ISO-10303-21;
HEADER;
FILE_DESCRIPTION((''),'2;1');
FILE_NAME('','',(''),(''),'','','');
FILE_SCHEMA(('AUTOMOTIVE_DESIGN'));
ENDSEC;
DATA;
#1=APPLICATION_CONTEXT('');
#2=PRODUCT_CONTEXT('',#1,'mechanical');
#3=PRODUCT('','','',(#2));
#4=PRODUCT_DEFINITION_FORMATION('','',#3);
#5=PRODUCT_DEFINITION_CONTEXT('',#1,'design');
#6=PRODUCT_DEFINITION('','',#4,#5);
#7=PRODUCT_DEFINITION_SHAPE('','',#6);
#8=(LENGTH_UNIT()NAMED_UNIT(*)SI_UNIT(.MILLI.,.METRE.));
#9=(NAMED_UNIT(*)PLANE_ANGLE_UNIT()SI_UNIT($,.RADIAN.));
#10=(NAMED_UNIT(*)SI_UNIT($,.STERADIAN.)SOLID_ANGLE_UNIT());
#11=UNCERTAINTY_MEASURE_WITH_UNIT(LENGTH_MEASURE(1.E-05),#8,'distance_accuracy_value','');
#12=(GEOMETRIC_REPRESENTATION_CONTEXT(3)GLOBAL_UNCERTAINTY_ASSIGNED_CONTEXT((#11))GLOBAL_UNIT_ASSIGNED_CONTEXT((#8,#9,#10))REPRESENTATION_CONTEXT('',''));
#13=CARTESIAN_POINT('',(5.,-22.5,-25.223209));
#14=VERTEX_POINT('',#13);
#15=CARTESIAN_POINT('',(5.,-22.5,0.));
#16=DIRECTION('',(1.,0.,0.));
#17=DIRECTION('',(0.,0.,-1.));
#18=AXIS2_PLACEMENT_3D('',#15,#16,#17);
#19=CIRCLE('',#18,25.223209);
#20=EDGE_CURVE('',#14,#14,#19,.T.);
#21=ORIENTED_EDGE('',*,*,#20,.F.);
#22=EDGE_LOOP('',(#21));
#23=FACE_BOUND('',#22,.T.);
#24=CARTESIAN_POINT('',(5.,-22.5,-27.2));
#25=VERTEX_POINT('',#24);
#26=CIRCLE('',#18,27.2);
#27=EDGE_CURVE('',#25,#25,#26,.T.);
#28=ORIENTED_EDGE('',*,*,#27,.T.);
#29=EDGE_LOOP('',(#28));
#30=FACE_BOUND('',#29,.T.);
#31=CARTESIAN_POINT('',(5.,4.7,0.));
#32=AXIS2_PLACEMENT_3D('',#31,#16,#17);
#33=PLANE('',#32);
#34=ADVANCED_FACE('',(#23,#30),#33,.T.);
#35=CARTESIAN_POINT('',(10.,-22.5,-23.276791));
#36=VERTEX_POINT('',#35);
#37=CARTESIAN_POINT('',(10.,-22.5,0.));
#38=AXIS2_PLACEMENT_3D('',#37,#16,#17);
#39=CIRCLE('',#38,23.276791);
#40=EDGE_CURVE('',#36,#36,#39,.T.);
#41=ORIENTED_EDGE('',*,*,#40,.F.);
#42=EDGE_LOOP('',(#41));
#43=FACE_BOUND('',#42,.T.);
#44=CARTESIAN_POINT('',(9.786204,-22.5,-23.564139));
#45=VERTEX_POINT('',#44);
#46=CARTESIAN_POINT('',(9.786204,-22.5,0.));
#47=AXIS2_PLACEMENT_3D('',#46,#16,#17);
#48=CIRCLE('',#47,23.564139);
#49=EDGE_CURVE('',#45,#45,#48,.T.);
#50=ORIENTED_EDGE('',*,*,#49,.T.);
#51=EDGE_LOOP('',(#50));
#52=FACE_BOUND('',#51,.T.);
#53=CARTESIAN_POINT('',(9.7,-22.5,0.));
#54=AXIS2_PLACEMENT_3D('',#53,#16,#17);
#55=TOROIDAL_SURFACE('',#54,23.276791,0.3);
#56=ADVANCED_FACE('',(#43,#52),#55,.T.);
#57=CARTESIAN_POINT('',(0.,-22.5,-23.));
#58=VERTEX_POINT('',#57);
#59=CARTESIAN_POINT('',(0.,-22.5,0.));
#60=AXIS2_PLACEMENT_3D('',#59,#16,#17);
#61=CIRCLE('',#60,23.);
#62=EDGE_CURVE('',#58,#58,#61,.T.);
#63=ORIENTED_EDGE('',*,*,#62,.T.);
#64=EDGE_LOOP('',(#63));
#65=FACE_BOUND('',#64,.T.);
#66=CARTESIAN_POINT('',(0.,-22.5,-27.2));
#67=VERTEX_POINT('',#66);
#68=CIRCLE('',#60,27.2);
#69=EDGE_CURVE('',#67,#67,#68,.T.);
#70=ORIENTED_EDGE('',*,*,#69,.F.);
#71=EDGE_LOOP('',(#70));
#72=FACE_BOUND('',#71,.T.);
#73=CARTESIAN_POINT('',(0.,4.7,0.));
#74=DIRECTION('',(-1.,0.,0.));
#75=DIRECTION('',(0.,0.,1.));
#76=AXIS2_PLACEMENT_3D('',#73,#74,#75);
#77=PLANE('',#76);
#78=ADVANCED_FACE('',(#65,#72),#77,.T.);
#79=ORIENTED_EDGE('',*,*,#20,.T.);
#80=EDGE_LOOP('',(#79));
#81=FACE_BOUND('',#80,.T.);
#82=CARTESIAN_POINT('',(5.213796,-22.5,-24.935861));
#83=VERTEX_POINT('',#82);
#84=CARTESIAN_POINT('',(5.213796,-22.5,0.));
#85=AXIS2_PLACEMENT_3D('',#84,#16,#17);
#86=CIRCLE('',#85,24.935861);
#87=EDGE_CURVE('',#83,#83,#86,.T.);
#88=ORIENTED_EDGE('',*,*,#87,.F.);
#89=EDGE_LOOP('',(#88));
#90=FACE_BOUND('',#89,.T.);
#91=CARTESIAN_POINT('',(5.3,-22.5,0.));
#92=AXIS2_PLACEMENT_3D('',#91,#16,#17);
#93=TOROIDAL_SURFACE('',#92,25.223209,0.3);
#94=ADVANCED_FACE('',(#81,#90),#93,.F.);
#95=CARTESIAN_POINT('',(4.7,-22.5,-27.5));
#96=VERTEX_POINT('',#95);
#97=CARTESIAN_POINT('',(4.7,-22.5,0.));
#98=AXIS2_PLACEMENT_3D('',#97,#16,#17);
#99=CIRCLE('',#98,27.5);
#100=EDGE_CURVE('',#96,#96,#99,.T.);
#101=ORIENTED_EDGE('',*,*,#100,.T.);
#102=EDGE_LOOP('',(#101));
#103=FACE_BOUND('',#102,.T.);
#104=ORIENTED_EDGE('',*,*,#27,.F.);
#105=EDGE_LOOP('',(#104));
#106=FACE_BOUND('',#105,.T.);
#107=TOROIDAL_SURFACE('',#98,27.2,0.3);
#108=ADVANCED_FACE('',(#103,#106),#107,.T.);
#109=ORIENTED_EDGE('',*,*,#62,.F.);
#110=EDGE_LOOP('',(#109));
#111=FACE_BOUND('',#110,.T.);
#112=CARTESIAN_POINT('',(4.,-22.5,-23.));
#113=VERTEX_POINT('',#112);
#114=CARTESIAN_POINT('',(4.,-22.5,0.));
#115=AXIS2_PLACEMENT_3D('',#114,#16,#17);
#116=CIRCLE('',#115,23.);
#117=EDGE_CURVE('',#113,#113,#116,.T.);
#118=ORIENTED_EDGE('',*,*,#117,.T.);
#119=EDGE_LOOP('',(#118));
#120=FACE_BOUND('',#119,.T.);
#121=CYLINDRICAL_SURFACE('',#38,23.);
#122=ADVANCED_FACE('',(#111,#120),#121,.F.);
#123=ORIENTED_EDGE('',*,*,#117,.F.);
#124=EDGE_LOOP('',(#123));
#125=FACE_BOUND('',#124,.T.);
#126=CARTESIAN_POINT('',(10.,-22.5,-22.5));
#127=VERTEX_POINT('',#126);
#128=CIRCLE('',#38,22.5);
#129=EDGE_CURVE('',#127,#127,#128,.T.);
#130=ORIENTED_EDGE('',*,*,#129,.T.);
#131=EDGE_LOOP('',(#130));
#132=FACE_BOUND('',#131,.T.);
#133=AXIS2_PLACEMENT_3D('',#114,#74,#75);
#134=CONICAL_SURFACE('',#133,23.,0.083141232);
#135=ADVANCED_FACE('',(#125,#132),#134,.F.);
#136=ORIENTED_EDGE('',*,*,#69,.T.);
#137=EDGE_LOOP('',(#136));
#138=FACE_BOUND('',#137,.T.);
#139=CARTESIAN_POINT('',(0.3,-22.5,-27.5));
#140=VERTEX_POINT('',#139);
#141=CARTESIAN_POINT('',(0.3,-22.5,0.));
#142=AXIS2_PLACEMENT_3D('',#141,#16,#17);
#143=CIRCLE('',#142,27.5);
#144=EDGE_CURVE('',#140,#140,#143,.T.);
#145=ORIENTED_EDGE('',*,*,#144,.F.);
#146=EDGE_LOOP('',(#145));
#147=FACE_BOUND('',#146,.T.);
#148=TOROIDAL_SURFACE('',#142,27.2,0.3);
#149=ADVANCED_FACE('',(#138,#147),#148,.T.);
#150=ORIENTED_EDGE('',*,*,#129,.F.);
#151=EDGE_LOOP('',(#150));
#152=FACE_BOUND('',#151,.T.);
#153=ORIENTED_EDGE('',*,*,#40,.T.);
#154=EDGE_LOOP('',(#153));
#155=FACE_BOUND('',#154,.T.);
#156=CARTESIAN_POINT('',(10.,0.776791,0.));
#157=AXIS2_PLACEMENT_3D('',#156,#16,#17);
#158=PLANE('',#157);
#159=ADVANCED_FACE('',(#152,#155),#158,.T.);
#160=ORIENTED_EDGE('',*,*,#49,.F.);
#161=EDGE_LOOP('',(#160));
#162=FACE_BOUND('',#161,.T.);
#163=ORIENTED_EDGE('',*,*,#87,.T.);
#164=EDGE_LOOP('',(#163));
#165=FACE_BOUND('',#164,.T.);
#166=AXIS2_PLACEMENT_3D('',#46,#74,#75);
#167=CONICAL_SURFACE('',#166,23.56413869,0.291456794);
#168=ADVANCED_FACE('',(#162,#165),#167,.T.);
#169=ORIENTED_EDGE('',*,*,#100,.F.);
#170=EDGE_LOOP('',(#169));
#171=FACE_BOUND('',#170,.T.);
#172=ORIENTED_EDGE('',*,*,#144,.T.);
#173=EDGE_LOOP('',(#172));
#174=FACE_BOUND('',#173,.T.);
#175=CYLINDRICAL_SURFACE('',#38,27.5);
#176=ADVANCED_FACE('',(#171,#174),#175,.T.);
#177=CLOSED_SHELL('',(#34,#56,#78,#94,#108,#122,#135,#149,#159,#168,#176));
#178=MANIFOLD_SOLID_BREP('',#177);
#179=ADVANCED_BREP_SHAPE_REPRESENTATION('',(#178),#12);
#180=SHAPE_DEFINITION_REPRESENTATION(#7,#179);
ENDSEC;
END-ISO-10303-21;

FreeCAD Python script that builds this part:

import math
import FreeCAD as App
import Part
import Sketcher

V = App.Vector

doc = App.newDocument("Part")
params = doc.addObject("Spreadsheet::Sheet", "Params")
for row, (alias, value) in enumerate([
    ("sketch1_radius", "0.3 mm"),
    ("sketch1_width", "4 mm"),
    ("sketch1_width2", "10 mm"),
    ("sketch1_width3", "4.4 mm"),
    ("sketch1_height", "4.2 mm"),
    ("revolution_angle", "360 deg"),
], start=1):
    params.set(f"A{row}", alias)
    params.set(f"B{row}", "=" + value)
    params.setAlias(f"B{row}", alias)

body = doc.addObject("PartDesign::Body", "Body")

sketch1 = body.newObject("Sketcher::SketchObject", "Sketch")
sketch1.AttachmentSupport = (doc.getObject("XY_Plane"), [""])
sketch1.MapMode = "FlatFace"
sketch1.addGeometry([
    Part.LineSegment(V(4.7, 5, 0), V(0.3, 5, 0)),
    Part.ArcOfCircle(Part.Circle(V(0.3, 4.7, 0), V(0, 0, 1), 0.3), math.radians(90), math.radians(180)),
    Part.LineSegment(V(0, 4.7, 0), V(0, 0.5, 0)),
    Part.LineSegment(V(0, 0.5, 0), V(4, 0.5, 0)),
    Part.LineSegment(V(4, 0.5, 0), V(10, 0, 0)),
    Part.LineSegment(V(10, 0, 0), V(10, 0.776791, 0)),
    Part.ArcOfCircle(Part.Circle(V(9.7, 0.776791, 0), V(0, 0, 1), 0.3), math.radians(0), math.radians(73.300756)),
    Part.LineSegment(V(9.786204, 1.064139, 0), V(5.213796, 2.435861, 0)),
    Part.ArcOfCircle(Part.Circle(V(5.3, 2.723209, 0), V(0, 0, 1), 0.3), math.radians(-180), math.radians(-106.699244)),
    Part.LineSegment(V(5, 2.723209, 0), V(5, 4.7, 0)),
    Part.ArcOfCircle(Part.Circle(V(4.7, 4.7, 0), V(0, 0, 1), 0.3), math.radians(0), math.radians(90)),
], False)
sketch1.addGeometry(Part.LineSegment(V(10, -22.5, 0), V(0, -22.5, 0)), True)
sketch1.addConstraint([
    Sketcher.Constraint("Tangent", 0, 2, 1, 1),
    Sketcher.Constraint("Tangent", 1, 2, 2, 1),
    Sketcher.Constraint("Coincident", 2, 2, 3, 1),
    Sketcher.Constraint("Coincident", 3, 2, 4, 1),
    Sketcher.Constraint("Coincident", 4, 2, 5, 1),
    Sketcher.Constraint("Tangent", 5, 2, 6, 1),
    Sketcher.Constraint("Tangent", 6, 2, 7, 1),
    Sketcher.Constraint("Tangent", 7, 2, 8, 2),
    Sketcher.Constraint("Tangent", 8, 1, 9, 1),
    Sketcher.Constraint("Tangent", 9, 2, 10, 1),
    Sketcher.Constraint("Tangent", 10, 2, 0, 1),
    Sketcher.Constraint("Horizontal", 0),
    Sketcher.Constraint("Vertical", 2),
    Sketcher.Constraint("Horizontal", 3),
    Sketcher.Constraint("Vertical", 5),
    Sketcher.Constraint("Vertical", 9),
    Sketcher.Constraint("Horizontal", 11),
    Sketcher.Constraint("Equal", 1, 6),
    Sketcher.Constraint("Equal", 6, 8),
    Sketcher.Constraint("Equal", 8, 10),
    Sketcher.Constraint("PointOnObject", 1, 2, -2),
    Sketcher.Constraint("PointOnObject", 4, 2, -1),
    Sketcher.Constraint("PointOnObject", 11, 2, -2),
    Sketcher.Constraint("Vertical", 5, 2, 11, 1),
    Sketcher.Constraint("Radius", 1, 0.3),
    Sketcher.Constraint("DistanceX", 3, 1, 3, 2, 4.0),
    Sketcher.Constraint("DistanceX", 11, 2, 11, 1, 10.0),
    Sketcher.Constraint("DistanceX", 0, 2, 0, 1, 4.4),
    Sketcher.Constraint("DistanceY", 2, 2, 2, 1, 4.2),
    Sketcher.Constraint("DistanceY", -1, 1, 0, 2, 5.0),
    Sketcher.Constraint("DistanceY", 11, 1, 3, 2, 23.0),
    Sketcher.Constraint("DistanceY", 5, 1, 5, 2, 0.776791),
    Sketcher.Constraint("DistanceY", 9, 1, 9, 2, 1.976791),
])
sketch1.setExpression("Constraints[24]", "Params.sketch1_radius")
sketch1.setExpression("Constraints[25]", "Params.sketch1_width")
sketch1.setExpression("Constraints[26]", "Params.sketch1_width2")
sketch1.setExpression("Constraints[27]", "Params.sketch1_width3")
sketch1.setExpression("Constraints[28]", "Params.sketch1_height")
revolution = body.newObject("PartDesign::Revolution", "Revolution")
revolution.Profile = sketch1
revolution.ReferenceAxis = (sketch1, ["Axis0"])
revolution.setExpression("Angle", "Params.revolution_angle")

doc.recompute()
